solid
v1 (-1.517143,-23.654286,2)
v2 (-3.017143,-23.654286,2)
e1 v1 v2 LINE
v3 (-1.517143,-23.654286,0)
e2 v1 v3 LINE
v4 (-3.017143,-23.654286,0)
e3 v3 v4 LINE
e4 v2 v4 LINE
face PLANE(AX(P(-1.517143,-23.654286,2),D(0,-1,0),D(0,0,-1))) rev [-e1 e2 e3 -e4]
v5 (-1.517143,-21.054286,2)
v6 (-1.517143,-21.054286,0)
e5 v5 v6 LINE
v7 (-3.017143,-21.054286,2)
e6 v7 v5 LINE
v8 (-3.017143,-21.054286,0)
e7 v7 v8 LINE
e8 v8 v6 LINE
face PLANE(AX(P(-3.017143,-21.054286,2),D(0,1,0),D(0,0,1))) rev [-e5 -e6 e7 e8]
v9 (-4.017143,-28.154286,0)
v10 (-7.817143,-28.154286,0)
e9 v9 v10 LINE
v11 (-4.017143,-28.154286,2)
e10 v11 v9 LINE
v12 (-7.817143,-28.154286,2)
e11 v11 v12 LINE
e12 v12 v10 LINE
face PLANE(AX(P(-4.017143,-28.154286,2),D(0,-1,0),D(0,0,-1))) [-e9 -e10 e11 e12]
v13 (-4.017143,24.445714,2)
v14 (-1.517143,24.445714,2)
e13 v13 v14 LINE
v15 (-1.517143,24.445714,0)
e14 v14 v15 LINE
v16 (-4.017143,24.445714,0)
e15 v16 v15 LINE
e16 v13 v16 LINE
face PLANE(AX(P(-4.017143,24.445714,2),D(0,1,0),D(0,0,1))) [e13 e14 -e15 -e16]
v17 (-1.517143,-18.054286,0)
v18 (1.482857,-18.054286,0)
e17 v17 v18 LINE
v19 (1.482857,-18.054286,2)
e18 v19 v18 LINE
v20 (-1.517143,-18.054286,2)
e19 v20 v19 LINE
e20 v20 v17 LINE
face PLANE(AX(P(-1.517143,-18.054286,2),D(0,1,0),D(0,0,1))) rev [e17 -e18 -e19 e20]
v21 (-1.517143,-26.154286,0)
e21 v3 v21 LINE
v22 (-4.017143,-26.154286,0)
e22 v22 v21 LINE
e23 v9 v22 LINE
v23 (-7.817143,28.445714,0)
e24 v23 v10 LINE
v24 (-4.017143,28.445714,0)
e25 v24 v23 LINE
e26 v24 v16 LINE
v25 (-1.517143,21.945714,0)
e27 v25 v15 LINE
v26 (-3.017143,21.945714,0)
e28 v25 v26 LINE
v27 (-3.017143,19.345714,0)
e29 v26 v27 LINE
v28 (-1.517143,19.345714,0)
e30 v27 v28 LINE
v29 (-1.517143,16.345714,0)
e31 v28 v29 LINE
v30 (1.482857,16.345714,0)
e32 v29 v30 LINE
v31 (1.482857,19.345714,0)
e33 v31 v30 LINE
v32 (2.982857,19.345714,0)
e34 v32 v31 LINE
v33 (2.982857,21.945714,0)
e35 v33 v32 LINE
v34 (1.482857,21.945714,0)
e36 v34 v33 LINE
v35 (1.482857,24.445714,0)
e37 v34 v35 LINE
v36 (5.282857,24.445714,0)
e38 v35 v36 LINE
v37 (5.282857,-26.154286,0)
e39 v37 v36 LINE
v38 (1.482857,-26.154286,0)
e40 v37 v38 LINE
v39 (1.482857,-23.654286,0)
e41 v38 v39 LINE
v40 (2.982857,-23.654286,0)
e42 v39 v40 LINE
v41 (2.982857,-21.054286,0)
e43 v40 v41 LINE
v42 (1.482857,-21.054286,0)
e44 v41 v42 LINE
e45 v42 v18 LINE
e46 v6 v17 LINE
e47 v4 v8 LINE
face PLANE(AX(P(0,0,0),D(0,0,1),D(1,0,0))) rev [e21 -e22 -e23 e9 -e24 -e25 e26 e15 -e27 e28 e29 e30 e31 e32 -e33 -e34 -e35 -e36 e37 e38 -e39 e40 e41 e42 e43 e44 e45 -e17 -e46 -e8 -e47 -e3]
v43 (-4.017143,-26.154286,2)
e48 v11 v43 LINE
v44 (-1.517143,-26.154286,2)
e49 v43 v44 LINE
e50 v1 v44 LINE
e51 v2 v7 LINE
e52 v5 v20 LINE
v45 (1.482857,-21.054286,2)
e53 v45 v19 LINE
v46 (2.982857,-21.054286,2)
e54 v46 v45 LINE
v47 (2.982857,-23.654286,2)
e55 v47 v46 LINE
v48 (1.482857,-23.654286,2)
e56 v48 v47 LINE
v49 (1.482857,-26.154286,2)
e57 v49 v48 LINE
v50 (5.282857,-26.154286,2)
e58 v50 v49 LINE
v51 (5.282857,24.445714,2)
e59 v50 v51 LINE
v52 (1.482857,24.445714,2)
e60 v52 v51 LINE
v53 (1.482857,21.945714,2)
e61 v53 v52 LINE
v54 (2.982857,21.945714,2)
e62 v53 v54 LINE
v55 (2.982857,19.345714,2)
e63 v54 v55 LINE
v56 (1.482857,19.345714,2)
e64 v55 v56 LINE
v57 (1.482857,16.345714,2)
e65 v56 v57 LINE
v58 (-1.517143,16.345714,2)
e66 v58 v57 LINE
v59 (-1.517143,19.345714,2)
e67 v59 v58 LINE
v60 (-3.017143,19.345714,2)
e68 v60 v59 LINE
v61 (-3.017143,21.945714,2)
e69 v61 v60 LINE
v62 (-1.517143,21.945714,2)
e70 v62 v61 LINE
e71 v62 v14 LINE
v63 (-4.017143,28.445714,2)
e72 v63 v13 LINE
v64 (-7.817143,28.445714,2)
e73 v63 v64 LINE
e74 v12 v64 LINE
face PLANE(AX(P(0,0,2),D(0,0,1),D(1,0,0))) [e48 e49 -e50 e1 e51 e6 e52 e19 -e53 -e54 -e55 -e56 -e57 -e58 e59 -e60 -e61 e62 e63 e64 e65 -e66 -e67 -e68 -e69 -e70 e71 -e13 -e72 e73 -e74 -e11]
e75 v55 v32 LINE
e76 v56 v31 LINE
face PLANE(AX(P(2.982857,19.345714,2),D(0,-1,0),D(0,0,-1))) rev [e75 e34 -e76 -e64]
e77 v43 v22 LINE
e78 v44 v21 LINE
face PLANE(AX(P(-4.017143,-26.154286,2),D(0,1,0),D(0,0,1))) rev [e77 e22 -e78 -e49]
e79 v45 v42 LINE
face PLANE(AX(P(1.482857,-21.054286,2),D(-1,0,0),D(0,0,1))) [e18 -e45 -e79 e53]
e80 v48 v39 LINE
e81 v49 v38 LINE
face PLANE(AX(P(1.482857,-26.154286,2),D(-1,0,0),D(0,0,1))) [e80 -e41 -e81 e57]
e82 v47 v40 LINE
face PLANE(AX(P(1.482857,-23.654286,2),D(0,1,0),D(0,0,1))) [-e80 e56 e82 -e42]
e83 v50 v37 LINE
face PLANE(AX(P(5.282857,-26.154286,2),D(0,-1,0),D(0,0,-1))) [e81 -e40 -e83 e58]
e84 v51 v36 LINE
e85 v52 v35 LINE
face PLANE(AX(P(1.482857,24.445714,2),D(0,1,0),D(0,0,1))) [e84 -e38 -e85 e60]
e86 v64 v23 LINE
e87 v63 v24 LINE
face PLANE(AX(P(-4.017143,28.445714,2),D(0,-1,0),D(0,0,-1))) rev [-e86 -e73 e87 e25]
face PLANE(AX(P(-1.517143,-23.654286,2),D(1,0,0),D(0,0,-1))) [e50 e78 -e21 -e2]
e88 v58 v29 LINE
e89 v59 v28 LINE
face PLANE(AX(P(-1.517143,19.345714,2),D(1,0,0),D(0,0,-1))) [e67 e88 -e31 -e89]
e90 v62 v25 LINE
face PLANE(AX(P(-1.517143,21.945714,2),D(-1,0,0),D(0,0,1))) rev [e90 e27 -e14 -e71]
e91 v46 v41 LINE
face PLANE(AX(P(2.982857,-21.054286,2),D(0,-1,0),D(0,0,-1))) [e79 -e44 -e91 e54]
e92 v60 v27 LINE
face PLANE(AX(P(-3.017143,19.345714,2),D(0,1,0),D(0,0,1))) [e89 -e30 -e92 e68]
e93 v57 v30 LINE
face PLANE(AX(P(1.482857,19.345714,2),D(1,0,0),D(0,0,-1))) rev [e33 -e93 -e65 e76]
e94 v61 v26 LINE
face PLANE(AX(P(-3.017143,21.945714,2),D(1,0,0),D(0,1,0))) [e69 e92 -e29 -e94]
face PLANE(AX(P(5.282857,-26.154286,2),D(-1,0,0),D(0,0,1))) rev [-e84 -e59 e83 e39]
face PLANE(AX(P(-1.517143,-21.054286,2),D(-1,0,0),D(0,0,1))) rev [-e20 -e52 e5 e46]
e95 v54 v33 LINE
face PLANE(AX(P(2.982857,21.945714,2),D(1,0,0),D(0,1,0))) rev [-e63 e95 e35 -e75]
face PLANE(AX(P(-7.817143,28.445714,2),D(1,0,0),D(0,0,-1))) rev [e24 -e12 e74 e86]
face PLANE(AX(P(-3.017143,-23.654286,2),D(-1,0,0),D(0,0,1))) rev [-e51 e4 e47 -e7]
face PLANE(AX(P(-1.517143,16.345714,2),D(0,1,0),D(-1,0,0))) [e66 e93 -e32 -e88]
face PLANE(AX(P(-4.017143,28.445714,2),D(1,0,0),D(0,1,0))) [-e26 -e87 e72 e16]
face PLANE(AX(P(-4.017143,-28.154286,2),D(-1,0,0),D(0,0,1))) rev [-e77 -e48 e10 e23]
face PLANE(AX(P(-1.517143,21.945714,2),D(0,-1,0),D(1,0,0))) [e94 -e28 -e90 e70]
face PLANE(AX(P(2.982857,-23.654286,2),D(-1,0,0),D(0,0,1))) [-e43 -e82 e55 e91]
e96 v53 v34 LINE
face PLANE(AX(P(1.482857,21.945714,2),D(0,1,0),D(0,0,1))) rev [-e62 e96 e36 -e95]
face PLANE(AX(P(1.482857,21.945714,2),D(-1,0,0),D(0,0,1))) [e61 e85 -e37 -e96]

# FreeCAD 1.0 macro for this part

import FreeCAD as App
import Part
import Sketcher
from FreeCAD import Vector


def add_polygon(sketch, points):
    """Adds a closed chain of lines whose ends are joined by coincident constraints."""
    first, n = sketch.GeometryCount, len(points)
    for a, b in zip(points, points[1:] + points[:1]):
        sketch.addGeometry(Part.LineSegment(App.Vector(*a, 0), App.Vector(*b, 0)), False)
    for i in range(n):
        sketch.addConstraint(Sketcher.Constraint("Coincident", first + i, 2, first + (i + 1) % n, 1))

doc = App.newDocument("Part")
body = doc.addObject("PartDesign::Body", "Body")

# Sketch on XY plane
sketch1 = body.newObject("Sketcher::SketchObject", "Sketch")
sketch1.AttachmentSupport = (doc.getObject("XY_Plane"), [""])
sketch1.MapMode = "FlatFace"
add_polygon(sketch1, [(-4.017143, 28.445714), (-7.817143, 28.445714), (-7.817143, -28.154286), (-4.017143, -28.154286), (-4.017143, -26.154286), (-1.517143, -26.154286), (-1.517143, -23.654286), (-3.017143, -23.654286), (-3.017143, -21.054286), (-1.517143, -21.054286), (-1.517143, -18.054286), (1.482857, -18.054286), (1.482857, -21.054286), (2.982857, -21.054286), (2.982857, -23.654286), (1.482857, -23.654286), (1.482857, -26.154286), (5.282857, -26.154286), (5.282857, 24.445714), (1.482857, 24.445714), (1.482857, 21.945714), (2.982857, 21.945714), (2.982857, 19.345714), (1.482857, 19.345714), (1.482857, 16.345714), (-1.517143, 16.345714), (-1.517143, 19.345714), (-3.017143, 19.345714), (-3.017143, 21.945714), (-1.517143, 21.945714), (-1.517143, 24.445714), (-4.017143, 24.445714)])  # lines 0-31
sketch1.addConstraint([
    Sketcher.Constraint("Horizontal", 0),
    Sketcher.Constraint("Vertical", 1),
    Sketcher.Constraint("Horizontal", 2),
    Sketcher.Constraint("Vertical", 3),
    Sketcher.Constraint("Horizontal", 4),
    Sketcher.Constraint("Vertical", 5),
    Sketcher.Constraint("Horizontal", 6),
    Sketcher.Constraint("Vertical", 7),
    Sketcher.Constraint("Horizontal", 8),
    Sketcher.Constraint("Vertical", 9),
    Sketcher.Constraint("Horizontal", 10),
    Sketcher.Constraint("Vertical", 11),
    Sketcher.Constraint("Horizontal", 12),
    Sketcher.Constraint("Vertical", 13),
    Sketcher.Constraint("Horizontal", 14),
    Sketcher.Constraint("Vertical", 15),
    Sketcher.Constraint("Horizontal", 16),
    Sketcher.Constraint("Vertical", 17),
    Sketcher.Constraint("Horizontal", 18),
    Sketcher.Constraint("Vertical", 19),
    Sketcher.Constraint("Horizontal", 20),
    Sketcher.Constraint("Vertical", 21),
    Sketcher.Constraint("Horizontal", 22),
    Sketcher.Constraint("Vertical", 23),
    Sketcher.Constraint("Horizontal", 24),
    Sketcher.Constraint("Vertical", 25),
    Sketcher.Constraint("Horizontal", 26),
    Sketcher.Constraint("Vertical", 27),
    Sketcher.Constraint("Horizontal", 28),
    Sketcher.Constraint("Vertical", 29),
    Sketcher.Constraint("Horizontal", 30),
    Sketcher.Constraint("Vertical", 31),
    Sketcher.Constraint("Horizontal", 8, 2, 11, 2),
    Sketcher.Constraint("Horizontal", 6, 2, 13, 2),
    Sketcher.Constraint("Horizontal", 4, 2, 15, 2),
    Sketcher.Constraint("Horizontal", 22, 2, 25, 2),
    Sketcher.Constraint("Horizontal", 20, 2, 27, 2),
    Sketcher.Constraint("Horizontal", 18, 2, 29, 2),
    Sketcher.Constraint("Vertical", 5, 2, 8, 2),
    Sketcher.Constraint("Vertical", 11, 2, 14, 2),
    Sketcher.Constraint("Vertical", 15, 2, 18, 2),
    Sketcher.Constraint("Vertical", 13, 2, 20, 2),
    Sketcher.Constraint("Vertical", 19, 2, 22, 2),
    Sketcher.Constraint("Vertical", 9, 2, 24, 2),
    Sketcher.Constraint("Vertical", 7, 2, 26, 2),
    Sketcher.Constraint("Vertical", 25, 2, 28, 2),
    Sketcher.Constraint("Vertical", 3, 2, 30, 2),
    Sketcher.Constraint("Equal", 8, 12),
    Sketcher.Constraint("Equal", 2, 16),
    Sketcher.Constraint("Equal", 30, 5),
    Sketcher.Constraint("Equal", 24, 9),
    Sketcher.Constraint("Equal", 15, 19),
    Sketcher.Constraint("Equal", 13, 21),
    Sketcher.Constraint("Equal", 11, 23),
    Sketcher.Constraint("DistanceX", 10, 1, 10, 2, 3.0),
    Sketcher.Constraint("DistanceY", 3, 1, 3, 2, 2.0),
    Sketcher.Constraint("DistanceY", 31, 1, 31, 2, 4.0),
    Sketcher.Constraint("DistanceX", 0, 2, 0, 1, 3.8),
    Sketcher.Constraint("DistanceX", 4, 1, 4, 2, 2.5),
    Sketcher.Constraint("DistanceX", 6, 2, 6, 1, 1.5),
    Sketcher.Constraint("DistanceY", 1, 2, 1, 1, 56.6),
    Sketcher.Constraint("DistanceY", 7, 1, 7, 2, 2.6),
    Sketcher.Constraint("DistanceX", 0, 2, -1, 1, 7.817143),
    Sketcher.Constraint("DistanceY", -1, 1, 0, 2, 28.445714),
])
pad1 = body.newObject("PartDesign::Pad", "Pad")
pad1.Profile = sketch1
pad1.Length = 2

doc.recompute()
